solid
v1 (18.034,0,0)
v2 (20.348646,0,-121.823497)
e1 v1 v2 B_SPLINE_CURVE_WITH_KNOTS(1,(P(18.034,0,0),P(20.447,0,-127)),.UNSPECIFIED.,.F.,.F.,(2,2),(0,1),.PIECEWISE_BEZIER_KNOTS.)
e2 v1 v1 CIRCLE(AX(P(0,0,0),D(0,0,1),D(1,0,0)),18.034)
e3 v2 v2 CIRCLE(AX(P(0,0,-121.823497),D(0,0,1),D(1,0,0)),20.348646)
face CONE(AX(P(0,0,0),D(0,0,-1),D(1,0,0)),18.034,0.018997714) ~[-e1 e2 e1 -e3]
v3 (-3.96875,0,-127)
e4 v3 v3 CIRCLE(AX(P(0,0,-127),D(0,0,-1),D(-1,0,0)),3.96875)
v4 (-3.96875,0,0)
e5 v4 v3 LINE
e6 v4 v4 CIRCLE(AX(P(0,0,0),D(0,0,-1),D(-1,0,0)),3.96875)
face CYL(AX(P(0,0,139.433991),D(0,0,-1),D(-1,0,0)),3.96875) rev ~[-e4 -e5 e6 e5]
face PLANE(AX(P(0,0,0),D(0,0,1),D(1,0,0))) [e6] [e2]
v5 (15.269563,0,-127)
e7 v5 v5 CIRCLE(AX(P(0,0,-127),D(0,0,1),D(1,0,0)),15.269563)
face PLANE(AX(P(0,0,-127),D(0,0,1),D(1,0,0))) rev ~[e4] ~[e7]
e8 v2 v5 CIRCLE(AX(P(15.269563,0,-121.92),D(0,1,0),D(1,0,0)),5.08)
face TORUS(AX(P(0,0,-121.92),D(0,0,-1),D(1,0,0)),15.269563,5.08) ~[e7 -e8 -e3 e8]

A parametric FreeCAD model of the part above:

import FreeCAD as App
import Part
import Sketcher

V = App.Vector
Q = App.Units.Quantity


def edges_at(feature, points):
    """Names of the edges that pass closest to the given points."""
    edges = feature.Shape.Edges
    near = lambda p: min(range(len(edges)), key=lambda i: edges[i].distToShape(Part.Vertex(*p))[0])
    return sorted({f"Edge{near(p) + 1}" for p in points})

doc = App.newDocument("Part")
body = doc.addObject("PartDesign::Body", "Body")

sketch1 = body.newObject("Sketcher::SketchObject", "Sketch")
sketch1.AttachmentSupport = (doc.getObject("XY_Plane"), [""])
sketch1.MapMode = "FlatFace"
sketch1.addGeometry(Part.Circle(V(0, 0, 0), V(0, 0, 1), 18), False)
sketch1.addConstraint([
    Sketcher.Constraint("Coincident", 0, 3, -1, 1),
    Sketcher.Constraint("Diameter", 0, Q("1.42 in")),
])

sketch2 = body.newObject("Sketcher::SketchObject", "Sketch001")
sketch2.AttachmentSupport = (doc.getObject("XY_Plane"), [""])
sketch2.MapMode = "FlatFace"
sketch2.AttachmentOffset = App.Placement(V(0, 0, -5 * 25.4), App.Rotation())
sketch2.addGeometry(Part.Circle(V(0, 0, 0), V(0, 0, 1), 20), False)
sketch2.addConstraint([
    Sketcher.Constraint("Coincident", 0, 3, -1, 1),
    Sketcher.Constraint("Diameter", 0, Q("1.61 in")),
])

additiveloft = body.newObject("PartDesign::AdditiveLoft", "AdditiveLoft")
additiveloft.Profile = sketch1
additiveloft.Sections = [sketch2]
doc.recompute()

fillet = body.newObject("PartDesign::Fillet", "Fillet")
fillet.Base = (additiveloft, edges_at(additiveloft, [(-20.447, 0, -127)]))
fillet.Radius = Q("0.2 in")

sketch3 = body.newObject("Sketcher::SketchObject", "Sketch002")
sketch3.AttachmentSupport = (doc.getObject("XY_Plane"), [""])
sketch3.MapMode = "FlatFace"
sketch3.addGeometry(Part.Circle(V(0, 0, 0), V(0, 0, 1), 4), False)
sketch3.addConstraint([
    Sketcher.Constraint("Coincident", 0, 3, -1, 1),
    Sketcher.Constraint("Diameter", 0, Q("0.3125 in")),
])
doc.recompute()
hole = body.newObject("PartDesign::Hole", "Hole")
hole.Profile = sketch3
hole.ThreadType = "None"
hole.Diameter = Q("0.3125 in")
hole.DepthType = "ThroughAll"

doc.recompute()
